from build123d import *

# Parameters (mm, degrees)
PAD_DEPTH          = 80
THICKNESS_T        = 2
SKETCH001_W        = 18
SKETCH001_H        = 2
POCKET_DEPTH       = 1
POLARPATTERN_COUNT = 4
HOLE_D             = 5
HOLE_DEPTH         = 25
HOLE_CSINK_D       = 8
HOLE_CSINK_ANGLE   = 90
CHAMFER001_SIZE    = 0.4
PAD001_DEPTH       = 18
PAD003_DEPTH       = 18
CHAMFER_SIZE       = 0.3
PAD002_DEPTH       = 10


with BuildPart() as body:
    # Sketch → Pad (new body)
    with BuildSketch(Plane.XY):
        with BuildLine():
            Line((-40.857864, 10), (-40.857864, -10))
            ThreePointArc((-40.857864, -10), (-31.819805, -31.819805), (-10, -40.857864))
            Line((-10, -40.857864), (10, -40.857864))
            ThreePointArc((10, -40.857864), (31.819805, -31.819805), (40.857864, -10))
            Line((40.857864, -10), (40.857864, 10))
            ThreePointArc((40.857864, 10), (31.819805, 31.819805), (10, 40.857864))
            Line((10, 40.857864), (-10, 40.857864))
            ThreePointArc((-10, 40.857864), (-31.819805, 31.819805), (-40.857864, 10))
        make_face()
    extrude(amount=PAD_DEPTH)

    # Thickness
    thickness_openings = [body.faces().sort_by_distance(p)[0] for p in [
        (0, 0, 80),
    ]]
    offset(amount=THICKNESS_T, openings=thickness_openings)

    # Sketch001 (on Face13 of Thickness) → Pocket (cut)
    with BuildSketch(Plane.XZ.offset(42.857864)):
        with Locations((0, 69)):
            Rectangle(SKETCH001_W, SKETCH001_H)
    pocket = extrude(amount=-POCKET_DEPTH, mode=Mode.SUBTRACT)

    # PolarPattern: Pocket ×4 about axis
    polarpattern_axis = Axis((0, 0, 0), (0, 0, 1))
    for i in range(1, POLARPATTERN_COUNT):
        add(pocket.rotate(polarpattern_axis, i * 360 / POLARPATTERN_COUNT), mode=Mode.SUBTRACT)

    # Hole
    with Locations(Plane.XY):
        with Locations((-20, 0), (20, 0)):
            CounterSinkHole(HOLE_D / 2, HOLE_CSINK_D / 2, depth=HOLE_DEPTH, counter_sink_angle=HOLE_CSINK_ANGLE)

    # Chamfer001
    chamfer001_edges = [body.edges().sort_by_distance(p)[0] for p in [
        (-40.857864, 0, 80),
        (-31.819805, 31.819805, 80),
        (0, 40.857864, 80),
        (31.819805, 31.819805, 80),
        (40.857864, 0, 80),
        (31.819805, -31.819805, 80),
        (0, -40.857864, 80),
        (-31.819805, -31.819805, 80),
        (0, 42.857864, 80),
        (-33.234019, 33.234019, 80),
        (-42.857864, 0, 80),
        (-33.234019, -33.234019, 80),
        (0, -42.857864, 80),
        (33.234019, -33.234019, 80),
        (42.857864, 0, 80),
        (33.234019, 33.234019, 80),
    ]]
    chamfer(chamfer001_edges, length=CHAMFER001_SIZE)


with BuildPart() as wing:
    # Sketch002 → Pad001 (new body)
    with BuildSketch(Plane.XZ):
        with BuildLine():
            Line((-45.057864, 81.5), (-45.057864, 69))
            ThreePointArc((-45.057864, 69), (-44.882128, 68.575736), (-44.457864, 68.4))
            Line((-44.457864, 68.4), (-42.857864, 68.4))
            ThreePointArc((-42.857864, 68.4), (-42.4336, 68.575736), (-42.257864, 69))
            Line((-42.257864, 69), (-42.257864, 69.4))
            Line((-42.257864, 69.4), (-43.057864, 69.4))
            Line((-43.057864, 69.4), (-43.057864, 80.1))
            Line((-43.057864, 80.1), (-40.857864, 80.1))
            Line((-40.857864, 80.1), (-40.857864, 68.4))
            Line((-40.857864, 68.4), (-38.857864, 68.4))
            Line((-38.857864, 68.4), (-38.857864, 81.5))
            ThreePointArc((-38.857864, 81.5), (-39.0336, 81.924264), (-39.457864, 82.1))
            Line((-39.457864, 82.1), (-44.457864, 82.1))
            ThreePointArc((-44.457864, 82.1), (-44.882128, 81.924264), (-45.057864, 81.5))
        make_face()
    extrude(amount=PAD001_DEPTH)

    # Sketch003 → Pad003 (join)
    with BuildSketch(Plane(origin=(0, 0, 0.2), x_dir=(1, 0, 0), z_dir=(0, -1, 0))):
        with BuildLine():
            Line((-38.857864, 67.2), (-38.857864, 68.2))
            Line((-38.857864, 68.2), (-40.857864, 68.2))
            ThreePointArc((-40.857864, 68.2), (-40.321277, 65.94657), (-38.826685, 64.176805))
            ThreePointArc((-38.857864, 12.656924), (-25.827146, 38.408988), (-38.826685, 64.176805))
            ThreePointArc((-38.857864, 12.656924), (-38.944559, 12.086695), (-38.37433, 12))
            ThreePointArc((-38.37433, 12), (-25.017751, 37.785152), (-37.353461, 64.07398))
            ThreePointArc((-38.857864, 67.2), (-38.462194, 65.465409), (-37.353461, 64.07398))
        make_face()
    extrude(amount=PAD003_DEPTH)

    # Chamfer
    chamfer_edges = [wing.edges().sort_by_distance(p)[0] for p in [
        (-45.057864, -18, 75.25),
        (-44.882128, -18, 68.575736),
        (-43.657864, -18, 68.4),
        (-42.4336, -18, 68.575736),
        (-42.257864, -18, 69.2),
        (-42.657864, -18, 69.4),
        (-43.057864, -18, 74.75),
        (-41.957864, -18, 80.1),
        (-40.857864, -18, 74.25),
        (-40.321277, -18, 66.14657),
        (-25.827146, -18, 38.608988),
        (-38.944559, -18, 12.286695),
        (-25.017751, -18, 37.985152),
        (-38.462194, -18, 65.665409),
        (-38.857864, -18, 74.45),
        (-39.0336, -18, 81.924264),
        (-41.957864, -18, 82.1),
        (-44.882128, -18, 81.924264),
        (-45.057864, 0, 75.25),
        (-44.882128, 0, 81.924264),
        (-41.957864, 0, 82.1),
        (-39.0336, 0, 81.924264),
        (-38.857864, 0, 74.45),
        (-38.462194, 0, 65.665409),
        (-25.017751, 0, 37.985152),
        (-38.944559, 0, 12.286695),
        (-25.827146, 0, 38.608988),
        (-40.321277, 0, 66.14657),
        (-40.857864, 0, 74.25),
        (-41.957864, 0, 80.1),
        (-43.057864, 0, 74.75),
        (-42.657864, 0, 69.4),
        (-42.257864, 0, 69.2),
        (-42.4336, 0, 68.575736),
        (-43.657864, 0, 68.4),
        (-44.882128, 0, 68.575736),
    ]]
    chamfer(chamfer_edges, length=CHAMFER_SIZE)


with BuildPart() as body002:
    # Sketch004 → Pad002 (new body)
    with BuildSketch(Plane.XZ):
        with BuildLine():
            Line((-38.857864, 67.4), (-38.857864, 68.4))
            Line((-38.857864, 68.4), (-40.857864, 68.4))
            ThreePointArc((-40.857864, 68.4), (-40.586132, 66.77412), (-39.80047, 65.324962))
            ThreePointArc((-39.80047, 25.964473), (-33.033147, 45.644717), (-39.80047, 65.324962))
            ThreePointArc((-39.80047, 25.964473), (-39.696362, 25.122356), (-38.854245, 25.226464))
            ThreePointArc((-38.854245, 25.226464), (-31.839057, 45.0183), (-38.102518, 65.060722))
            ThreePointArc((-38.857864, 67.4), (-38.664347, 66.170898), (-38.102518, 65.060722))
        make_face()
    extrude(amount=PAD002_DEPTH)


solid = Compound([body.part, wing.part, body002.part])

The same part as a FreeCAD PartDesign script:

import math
import FreeCAD as App
import Part
import Sketcher

V = App.Vector
Q = App.Units.Quantity


def edges_at(feature, points):
    """Names of the edges that pass closest to the given points."""
    edges = feature.Shape.Edges
    near = lambda p: min(range(len(edges)), key=lambda i: edges[i].distToShape(Part.Vertex(*p))[0])
    return sorted({f"Edge{near(p) + 1}" for p in points})


def faces_at(feature, points):
    """Names of the faces that lie closest to the given points."""
    faces = feature.Shape.Faces
    near = lambda p: min(range(len(faces)), key=lambda i: faces[i].distToShape(Part.Vertex(*p))[0])
    return sorted({f"Face{near(p) + 1}" for p in points})


def add_polygon(sketch, points):
    """Adds a closed chain of lines whose ends are joined by coincident constraints."""
    first, n = sketch.GeometryCount, len(points)
    for a, b in zip(points, points[1:] + points[:1]):
        sketch.addGeometry(Part.LineSegment(App.Vector(*a, 0), App.Vector(*b, 0)), False)
    for i in range(n):
        sketch.addConstraint(Sketcher.Constraint("Coincident", first + i, 2, first + (i + 1) % n, 1))

doc = App.newDocument("Part")
body = doc.addObject("PartDesign::Body", "Body")

sketch1 = body.newObject("Sketcher::SketchObject", "Sketch")
sketch1.AttachmentSupport = (doc.getObject("XY_Plane"), [""])
sketch1.MapMode = "FlatFace"
sketch1.addGeometry(Part.LineSegment(V(-41, 10, 0), V(-41, -10, 0)), False)
sketch1.addGeometry(Part.ArcOfCircle(Part.Circle(V(-10, -10, 0), V(0, 0, 1), 31), math.radians(180), math.radians(270)), False)
sketch1.addGeometry(Part.LineSegment(V(-10, -41, 0), V(10, -41, 0)), False)
sketch1.addGeometry(Part.ArcOfCircle(Part.Circle(V(10, -10, 0), V(0, 0, 1), 31), math.radians(-90), math.radians(0)), False)
sketch1.addGeometry(Part.LineSegment(V(41, -10, 0), V(41, 10, 0)), False)
sketch1.addGeometry(Part.ArcOfCircle(Part.Circle(V(10, 10, 0), V(0, 0, 1), 31), math.radians(0), math.radians(90)), False)
sketch1.addGeometry(Part.LineSegment(V(10, 41, 0), V(-10, 41, 0)), False)
sketch1.addGeometry(Part.ArcOfCircle(Part.Circle(V(-10, 10, 0), V(0, 0, 1), 31), math.radians(90), math.radians(180)), False)
sketch1.addConstraint(Sketcher.Constraint("Tangent", 0, 2, 1, 1))
sketch1.addConstraint(Sketcher.Constraint("Tangent", 1, 2, 2, 1))
sketch1.addConstraint(Sketcher.Constraint("Tangent", 2, 2, 3, 1))
sketch1.addConstraint(Sketcher.Constraint("Tangent", 3, 2, 4, 1))
sketch1.addConstraint(Sketcher.Constraint("Tangent", 4, 2, 5, 1))
sketch1.addConstraint(Sketcher.Constraint("Tangent", 5, 2, 6, 1))
sketch1.addConstraint(Sketcher.Constraint("Tangent", 6, 2, 7, 1))
sketch1.addConstraint(Sketcher.Constraint("Tangent", 7, 2, 0, 1))
sketch1.addConstraint(Sketcher.Constraint("Vertical", 0))
sketch1.addConstraint(Sketcher.Constraint("Horizontal", 2))
sketch1.addConstraint(Sketcher.Constraint("Vertical", 4))
sketch1.addConstraint(Sketcher.Constraint("Horizontal", 6))
sketch1.addConstraint(Sketcher.Constraint("Equal", 1, 3))
sketch1.addConstraint(Sketcher.Constraint("Equal", 3, 5))
sketch1.addConstraint(Sketcher.Constraint("Equal", 5, 7))
sketch1.addConstraint(Sketcher.Constraint("Symmetric", 1, 3, 5, 3, -1, 1))
sketch1.addConstraint(Sketcher.Constraint("Equal", 6, 0))
sketch1.addConstraint(Sketcher.Constraint("DistanceX", 2, 1, 2, 2, Q("20 mm")))
sketch1.addConstraint(Sketcher.Constraint("Radius", 1, Q("30.857864 mm")))
pad1 = body.newObject("PartDesign::Pad", "Pad")
pad1.Profile = sketch1
pad1.Length = 80
doc.recompute()

thickness = body.newObject("PartDesign::Thickness", "Thickness")
thickness.Base = (pad1, faces_at(pad1, [(0, 0, 80)]))
thickness.Value = 2
thickness.Reversed = False
thickness.Join = "Arc"

sketch2 = body.newObject("Sketcher::SketchObject", "Sketch001")
sketch2.AttachmentSupport = (doc.getObject("XZ_Plane"), [""])
sketch2.MapMode = "FlatFace"
sketch2.AttachmentOffset = App.Placement(V(0, 0, 42.857864), App.Rotation())
add_polygon(sketch2, [(-9, 70), (-9, 68), (9, 68), (9, 70)])
sketch2.addConstraint(Sketcher.Constraint("Vertical", 0))
sketch2.addConstraint(Sketcher.Constraint("Horizontal", 1))
sketch2.addConstraint(Sketcher.Constraint("Vertical", 2))
sketch2.addConstraint(Sketcher.Constraint("Horizontal", 3))
sketch2.addConstraint(Sketcher.Constraint("DistanceX", 1, 1, 1, 2, Q("18 mm")))
sketch2.addConstraint(Sketcher.Constraint("DistanceY", 0, 2, 0, 1, Q("2 mm")))
sketch2.addConstraint(Sketcher.Constraint("DistanceX", 0, 2, -1, 1, Q("9 mm")))
sketch2.addConstraint(Sketcher.Constraint("DistanceY", -1, 1, 0, 2, Q("68 mm")))
pocket1 = body.newObject("PartDesign::Pocket", "Pocket")
pocket1.Profile = sketch2
pocket1.Length = 1
doc.recompute()

polarpattern = body.newObject("PartDesign::PolarPattern", "PolarPattern")
polarpattern.Originals = [pocket1]
polarpattern.Axis = (doc.getObject("Z_Axis"), [""])
polarpattern.Angle = 360
polarpattern.Occurrences = 4
body.Tip = polarpattern

sketch3 = body.newObject("Sketcher::SketchObject", "Sketch002")
sketch3.AttachmentSupport = (doc.getObject("XY_Plane"), [""])
sketch3.MapMode = "FlatFace"
sketch3.addGeometry(Part.Circle(V(-20, 0, 0), V(0, 0, 1), 2.5), False)
sketch3.addGeometry(Part.Circle(V(20, 0, 0), V(0, 0, 1), 2.5), False)
sketch3.addConstraint(Sketcher.Constraint("Equal", 0, 1))
sketch3.addConstraint(Sketcher.Constraint("Symmetric", 0, 3, 1, 3, -1, 1))
sketch3.addConstraint(Sketcher.Constraint("PointOnObject", 0, 3, -1))
sketch3.addConstraint(Sketcher.Constraint("Diameter", 0, Q("5 mm")))
sketch3.addConstraint(Sketcher.Constraint("DistanceX", 0, 3, -1, 1, Q("20 mm")))
doc.recompute()
hole = body.newObject("PartDesign::Hole", "Hole")
hole.Profile = sketch3
hole.ThreadType = "None"
hole.Diameter = 5
hole.DepthType = "Dimension"
hole.Depth = 25
hole.DrillPoint = "Flat"
hole.HoleCutType = "Countersink"
hole.HoleCutDiameter = 8
hole.HoleCutCountersinkAngle = 90
doc.recompute()

chamfer = body.newObject("PartDesign::Chamfer", "Chamfer")
chamfer.Base = (hole, edges_at(hole, [
    (-40.858, 0, 80),
    (-31.82, 31.82, 80),
    (0, 40.858, 80),
    (31.82, 31.82, 80),
    (40.858, 0, 80),
    (31.82, -31.82, 80),
    (0, -40.858, 80),
    (-31.82, -31.82, 80),
    (0, 42.858, 80),
    (-33.234, 33.234, 80),
    (-42.858, 0, 80),
    (-33.234, -33.234, 80),
    (0, -42.858, 80),
    (33.234, -33.234, 80),
    (42.858, 0, 80),
    (33.234, 33.234, 80),
]))
chamfer.Size = 0.4
body2 = doc.addObject("PartDesign::Body", "Body001")

sketch4 = body2.newObject("Sketcher::SketchObject", "Sketch003")
sketch4.AttachmentSupport = (doc.getObject("XZ_Plane001"), [""])
sketch4.MapMode = "FlatFace"
sketch4.addGeometry(Part.LineSegment(V(-45.06, 81.5, 0), V(-45.06, 69, 0)), False)
sketch4.addGeometry(Part.ArcOfCircle(Part.Circle(V(-44.46, 69, 0), V(0, 0, 1), 0.6), math.radians(-180), math.radians(-90)), False)
sketch4.addGeometry(Part.LineSegment(V(-44.46, 68.4, 0), V(-42.86, 68.4, 0)), False)
sketch4.addGeometry(Part.ArcOfCircle(Part.Circle(V(-42.86, 69, 0), V(0, 0, 1), 0.6), math.radians(-90), math.radians(0)), False)
sketch4.addGeometry(Part.LineSegment(V(-42.26, 69, 0), V(-42.26, 69.4, 0)), False)
sketch4.addGeometry(Part.LineSegment(V(-42.26, 69.4, 0), V(-43.06, 69.4, 0)), False)
sketch4.addGeometry(Part.LineSegment(V(-43.06, 69.4, 0), V(-43.06, 80.1, 0)), False)
sketch4.addGeometry(Part.LineSegment(V(-43.06, 80.1, 0), V(-40.86, 80.1, 0)), False)
sketch4.addGeometry(Part.LineSegment(V(-40.86, 80.1, 0), V(-40.86, 68.4, 0)), False)
sketch4.addGeometry(Part.LineSegment(V(-40.86, 68.4, 0), V(-38.86, 68.4, 0)), False)
sketch4.addGeometry(Part.LineSegment(V(-38.86, 68.4, 0), V(-38.86, 81.5, 0)), False)
sketch4.addGeometry(Part.ArcOfCircle(Part.Circle(V(-39.46, 81.5, 0), V(0, 0, 1), 0.6), math.radians(0), math.radians(90)), False)
sketch4.addGeometry(Part.LineSegment(V(-39.46, 82.1, 0), V(-44.46, 82.1, 0)), False)
sketch4.addGeometry(Part.ArcOfCircle(Part.Circle(V(-44.46, 81.5, 0), V(0, 0, 1), 0.6), math.radians(90), math.radians(180)), False)
sketch4.addConstraint(Sketcher.Constraint("Tangent", 0, 2, 1, 1))
sketch4.addConstraint(Sketcher.Constraint("Tangent", 1, 2, 2, 1))
sketch4.addConstraint(Sketcher.Constraint("Tangent", 2, 2, 3, 1))
sketch4.addConstraint(Sketcher.Constraint("Tangent", 3, 2, 4, 1))
sketch4.addConstraint(Sketcher.Constraint("Coincident", 4, 2, 5, 1))
sketch4.addConstraint(Sketcher.Constraint("Coincident", 5, 2, 6, 1))
sketch4.addConstraint(Sketcher.Constraint("Coincident", 6, 2, 7, 1))
sketch4.addConstraint(Sketcher.Constraint("Coincident", 7, 2, 8, 1))
sketch4.addConstraint(Sketcher.Constraint("Coincident", 8, 2, 9, 1))
sketch4.addConstraint(Sketcher.Constraint("Coincident", 9, 2, 10, 1))
sketch4.addConstraint(Sketcher.Constraint("Tangent", 10, 2, 11, 1))
sketch4.addConstraint(Sketcher.Constraint("Tangent", 11, 2, 12, 1))
sketch4.addConstraint(Sketcher.Constraint("Tangent", 12, 2, 13, 1))
sketch4.addConstraint(Sketcher.Constraint("Tangent", 13, 2, 0, 1))
sketch4.addConstraint(Sketcher.Constraint("Vertical", 0))
sketch4.addConstraint(Sketcher.Constraint("Horizontal", 2))
sketch4.addConstraint(Sketcher.Constraint("Vertical", 4))
sketch4.addConstraint(Sketcher.Constraint("Horizontal", 5))
sketch4.addConstraint(Sketcher.Constraint("Vertical", 6))
sketch4.addConstraint(Sketcher.Constraint("Horizontal", 7))
sketch4.addConstraint(Sketcher.Constraint("Vertical", 8))
sketch4.addConstraint(Sketcher.Constraint("Horizontal", 9))
sketch4.addConstraint(Sketcher.Constraint("Vertical", 10))
sketch4.addConstraint(Sketcher.Constraint("Horizontal", 12))
sketch4.addConstraint(Sketcher.Constraint("Equal", 1, 3))
sketch4.addConstraint(Sketcher.Constraint("Equal", 3, 11))
sketch4.addConstraint(Sketcher.Constraint("Equal", 11, 13))
sketch4.addConstraint(Sketcher.Constraint("Horizontal", 2, 2, 8, 2))
sketch4.addConstraint(Sketcher.Constraint("Radius", 1, Q("0.6 mm")))
sketch4.addConstraint(Sketcher.Constraint("DistanceX", 9, 1, 9, 2, Q("2 mm")))
sketch4.addConstraint(Sketcher.Constraint("DistanceX", 12, 2, 12, 1, Q("5 mm")))
sketch4.addConstraint(Sketcher.Constraint("DistanceX", 2, 1, 2, 2, Q("1.6 mm")))
sketch4.addConstraint(Sketcher.Constraint("DistanceX", 5, 2, 5, 1, Q("0.8 mm")))
sketch4.addConstraint(Sketcher.Constraint("DistanceY", 0, 2, 0, 1, Q("12.5 mm")))
sketch4.addConstraint(Sketcher.Constraint("DistanceY", 4, 1, 4, 2, Q("0.4 mm")))
sketch4.addConstraint(Sketcher.Constraint("DistanceY", 6, 1, 6, 2, Q("10.7 mm")))
sketch4.addConstraint(Sketcher.Constraint("DistanceY", -1, 1, 1, 3, Q("69 mm")))
sketch4.addConstraint(Sketcher.Constraint("DistanceX", 1, 3, -1, 1, Q("44.457864 mm")))
pad2 = body2.newObject("PartDesign::Pad", "Pad001")
pad2.Profile = sketch4
pad2.Length = 18

sketch5 = body2.newObject("Sketcher::SketchObject", "Sketch004")
sketch5.AttachmentSupport = (doc.getObject("XZ_Plane001"), [""])
sketch5.MapMode = "FlatFace"
sketch5.addGeometry(Part.LineSegment(V(-38.86, 67.4, 0), V(-38.86, 68.4, 0)), False)
sketch5.addGeometry(Part.LineSegment(V(-38.86, 68.4, 0), V(-40.86, 68.4, 0)), False)
sketch5.addGeometry(Part.ArcOfCircle(Part.Circle(V(-35.86, 68.4, 0), V(0, 0, 1), 5), math.radians(180), math.radians(234)), False)
sketch5.addGeometry(Part.ArcOfCircle(Part.Circle(V(-57.83, 38.63, 0), V(0, 0, 1), 32), math.radians(-54), math.radians(54)), False)
sketch5.addGeometry(Part.ArcOfCircle(Part.Circle(V(-38.62, 12.53, 0), V(0, 0, 1), 0.41), math.radians(126), math.radians(306)), False)
sketch5.addGeometry(Part.ArcOfCircle(Part.Circle(V(-57.83, 38.63, 0), V(0, 0, 1), 32.82), math.radians(-54), math.radians(51)), False)
sketch5.addGeometry(Part.ArcOfCircle(Part.Circle(V(-34.86, 67.4, 0), V(0, 0, 1), 4), math.radians(-180), math.radians(-129)), False)
sketch5.addConstraint(Sketcher.Constraint("Coincident", 0, 2, 1, 1))
sketch5.addConstraint(Sketcher.Constraint("Coincident", 1, 2, 2, 1))
sketch5.addConstraint(Sketcher.Constraint("Tangent", 2, 2, 3, 2))
sketch5.addConstraint(Sketcher.Constraint("Tangent", 3, 1, 4, 1))
sketch5.addConstraint(Sketcher.Constraint("Tangent", 4, 2, 5, 1))
sketch5.addConstraint(Sketcher.Constraint("Tangent", 5, 2, 6, 2))
sketch5.addConstraint(Sketcher.Constraint("Tangent", 6, 1, 0, 1))
sketch5.addConstraint(Sketcher.Constraint("Vertical", 0))
sketch5.addConstraint(Sketcher.Constraint("Horizontal", 1))
sketch5.addConstraint(Sketcher.Constraint("Coincident", 5, 3, 3, 3))
sketch5.addConstraint(Sketcher.Constraint("Horizontal", 2, 3, 0, 2))
sketch5.addConstraint(Sketcher.Constraint("Vertical", 0, 2, 3, 1))
sketch5.addConstraint(Sketcher.Constraint("Radius", 3, Q("32.000001 mm")))
sketch5.addConstraint(Sketcher.Constraint("DistanceX", 1, 2, 1, 1, Q("2 mm")))
sketch5.addConstraint(Sketcher.Constraint("DistanceY", 0, 1, 0, 2, Q("1 mm")))
sketch5.addConstraint(Sketcher.Constraint("DistanceY", -1, 1, 2, 3, Q("68.399999 mm")))
sketch5.addConstraint(Sketcher.Constraint("DistanceY", -1, 1, 4, 2, Q("12.2 mm")))
sketch5.addConstraint(Sketcher.Constraint("Radius", 2, Q("4.999996 mm")))
sketch5.addConstraint(Sketcher.Constraint("Radius", 4, Q("0.407846 mm")))
sketch5.addConstraint(Sketcher.Constraint("DistanceX", 3, 3, -1, 1, Q("57.827141 mm")))
pad3 = body2.newObject("PartDesign::Pad", "Pad002")
pad3.Profile = sketch5
pad3.Length = 18
doc.recompute()

chamfer2 = body2.newObject("PartDesign::Chamfer", "Chamfer001")
chamfer2.Base = (pad3, edges_at(pad3, [
    (-45.058, -18, 75.25),
    (-44.882, -18, 68.576),
    (-43.658, -18, 68.4),
    (-42.434, -18, 68.576),
    (-42.258, -18, 69.2),
    (-42.658, -18, 69.4),
    (-43.058, -18, 74.75),
    (-41.958, -18, 80.1),
    (-40.858, -18, 74.25),
    (-40.321, -18, 66.147),
    (-25.827, -18, 38.609),
    (-38.945, -18, 12.287),
    (-25.018, -18, 37.985),
    (-38.462, -18, 65.665),
    (-38.858, -18, 74.45),
    (-39.034, -18, 81.924),
    (-41.958, -18, 82.1),
    (-44.882, -18, 81.924),
    (-45.058, 0, 75.25),
    (-44.882, 0, 81.924),
    (-41.958, 0, 82.1),
    (-39.034, 0, 81.924),
    (-38.858, 0, 74.45),
    (-38.462, 0, 65.665),
    (-25.018, 0, 37.985),
    (-38.945, 0, 12.287),
    (-25.827, 0, 38.609),
    (-40.321, 0, 66.147),
    (-40.858, 0, 74.25),
    (-41.958, 0, 80.1),
    (-43.058, 0, 74.75),
    (-42.658, 0, 69.4),
    (-42.258, 0, 69.2),
    (-42.434, 0, 68.576),
    (-43.658, 0, 68.4),
    (-44.882, 0, 68.576),
]))
chamfer2.Size = 0.3
body3 = doc.addObject("PartDesign::Body", "Body002")

sketch6 = body3.newObject("Sketcher::SketchObject", "Sketch005")
sketch6.AttachmentSupport = (doc.getObject("XZ_Plane002"), [""])
sketch6.MapMode = "FlatFace"
sketch6.addGeometry(Part.LineSegment(V(-38.9, 67.4, 0), V(-38.9, 68.4, 0)), False)
sketch6.addGeometry(Part.LineSegment(V(-38.9, 68.4, 0), V(-40.9, 68.4, 0)), False)
sketch6.addGeometry(Part.ArcOfCircle(Part.Circle(V(-35.9, 68.4, 0), V(0, 0, 1), 5), math.radians(180), math.radians(218)), False)
sketch6.addGeometry(Part.ArcOfCircle(Part.Circle(V(-65, 45.6, 0), V(0, 0, 1), 32), math.radians(-38), math.radians(38)), False)
sketch6.addGeometry(Part.ArcOfCircle(Part.Circle(V(-39.3, 25.6, 0), V(0, 0, 1), 0.6), math.radians(142), math.radians(322)), False)
sketch6.addGeometry(Part.ArcOfCircle(Part.Circle(V(-65, 45.6, 0), V(0, 0, 1), 33.2), math.radians(-38), math.radians(36)), False)
sketch6.addGeometry(Part.ArcOfCircle(Part.Circle(V(-34.9, 67.4, 0), V(0, 0, 1), 4), math.radians(180), math.radians(216)), False)
sketch6.addConstraint(Sketcher.Constraint("Coincident", 0, 2, 1, 1))
sketch6.addConstraint(Sketcher.Constraint("Coincident", 1, 2, 2, 1))
sketch6.addConstraint(Sketcher.Constraint("Tangent", 2, 2, 3, 2))
sketch6.addConstraint(Sketcher.Constraint("Tangent", 3, 1, 4, 1))
sketch6.addConstraint(Sketcher.Constraint("Tangent", 4, 2, 5, 1))
sketch6.addConstraint(Sketcher.Constraint("Tangent", 5, 2, 6, 2))
sketch6.addConstraint(Sketcher.Constraint("Tangent", 6, 1, 0, 1))
sketch6.addConstraint(Sketcher.Constraint("Vertical", 0))
sketch6.addConstraint(Sketcher.Constraint("Horizontal", 1))
sketch6.addConstraint(Sketcher.Constraint("Coincident", 5, 3, 3, 3))
sketch6.addConstraint(Sketcher.Constraint("Vertical", 2, 2, 3, 1))
sketch6.addConstraint(Sketcher.Constraint("Radius", 3, Q("32.000001 mm")))
sketch6.addConstraint(Sketcher.Constraint("Radius", 4, Q("0.6 mm")))
sketch6.addConstraint(Sketcher.Constraint("DistanceX", 1, 2, 1, 1, Q("2 mm")))
sketch6.addConstraint(Sketcher.Constraint("DistanceY", 0, 1, 0, 2, Q("1 mm")))
sketch6.addConstraint(Sketcher.Constraint("DistanceY", 6, 3, 2, 3, Q("1.000001 mm")))
sketch6.addConstraint(Sketcher.Constraint("DistanceY", -1, 1, 0, 2, Q("68.4 mm")))
sketch6.addConstraint(Sketcher.Constraint("Radius", 6, Q("3.99999 mm")))
sketch6.addConstraint(Sketcher.Constraint("Radius", 2, Q("4.999994 mm")))
sketch6.addConstraint(Sketcher.Constraint("DistanceX", 2, 3, -1, 1, Q("35.85787 mm")))
pad4 = body3.newObject("PartDesign::Pad", "Pad003")
pad4.Profile = sketch6
pad4.Length = 10

doc.recompute()
